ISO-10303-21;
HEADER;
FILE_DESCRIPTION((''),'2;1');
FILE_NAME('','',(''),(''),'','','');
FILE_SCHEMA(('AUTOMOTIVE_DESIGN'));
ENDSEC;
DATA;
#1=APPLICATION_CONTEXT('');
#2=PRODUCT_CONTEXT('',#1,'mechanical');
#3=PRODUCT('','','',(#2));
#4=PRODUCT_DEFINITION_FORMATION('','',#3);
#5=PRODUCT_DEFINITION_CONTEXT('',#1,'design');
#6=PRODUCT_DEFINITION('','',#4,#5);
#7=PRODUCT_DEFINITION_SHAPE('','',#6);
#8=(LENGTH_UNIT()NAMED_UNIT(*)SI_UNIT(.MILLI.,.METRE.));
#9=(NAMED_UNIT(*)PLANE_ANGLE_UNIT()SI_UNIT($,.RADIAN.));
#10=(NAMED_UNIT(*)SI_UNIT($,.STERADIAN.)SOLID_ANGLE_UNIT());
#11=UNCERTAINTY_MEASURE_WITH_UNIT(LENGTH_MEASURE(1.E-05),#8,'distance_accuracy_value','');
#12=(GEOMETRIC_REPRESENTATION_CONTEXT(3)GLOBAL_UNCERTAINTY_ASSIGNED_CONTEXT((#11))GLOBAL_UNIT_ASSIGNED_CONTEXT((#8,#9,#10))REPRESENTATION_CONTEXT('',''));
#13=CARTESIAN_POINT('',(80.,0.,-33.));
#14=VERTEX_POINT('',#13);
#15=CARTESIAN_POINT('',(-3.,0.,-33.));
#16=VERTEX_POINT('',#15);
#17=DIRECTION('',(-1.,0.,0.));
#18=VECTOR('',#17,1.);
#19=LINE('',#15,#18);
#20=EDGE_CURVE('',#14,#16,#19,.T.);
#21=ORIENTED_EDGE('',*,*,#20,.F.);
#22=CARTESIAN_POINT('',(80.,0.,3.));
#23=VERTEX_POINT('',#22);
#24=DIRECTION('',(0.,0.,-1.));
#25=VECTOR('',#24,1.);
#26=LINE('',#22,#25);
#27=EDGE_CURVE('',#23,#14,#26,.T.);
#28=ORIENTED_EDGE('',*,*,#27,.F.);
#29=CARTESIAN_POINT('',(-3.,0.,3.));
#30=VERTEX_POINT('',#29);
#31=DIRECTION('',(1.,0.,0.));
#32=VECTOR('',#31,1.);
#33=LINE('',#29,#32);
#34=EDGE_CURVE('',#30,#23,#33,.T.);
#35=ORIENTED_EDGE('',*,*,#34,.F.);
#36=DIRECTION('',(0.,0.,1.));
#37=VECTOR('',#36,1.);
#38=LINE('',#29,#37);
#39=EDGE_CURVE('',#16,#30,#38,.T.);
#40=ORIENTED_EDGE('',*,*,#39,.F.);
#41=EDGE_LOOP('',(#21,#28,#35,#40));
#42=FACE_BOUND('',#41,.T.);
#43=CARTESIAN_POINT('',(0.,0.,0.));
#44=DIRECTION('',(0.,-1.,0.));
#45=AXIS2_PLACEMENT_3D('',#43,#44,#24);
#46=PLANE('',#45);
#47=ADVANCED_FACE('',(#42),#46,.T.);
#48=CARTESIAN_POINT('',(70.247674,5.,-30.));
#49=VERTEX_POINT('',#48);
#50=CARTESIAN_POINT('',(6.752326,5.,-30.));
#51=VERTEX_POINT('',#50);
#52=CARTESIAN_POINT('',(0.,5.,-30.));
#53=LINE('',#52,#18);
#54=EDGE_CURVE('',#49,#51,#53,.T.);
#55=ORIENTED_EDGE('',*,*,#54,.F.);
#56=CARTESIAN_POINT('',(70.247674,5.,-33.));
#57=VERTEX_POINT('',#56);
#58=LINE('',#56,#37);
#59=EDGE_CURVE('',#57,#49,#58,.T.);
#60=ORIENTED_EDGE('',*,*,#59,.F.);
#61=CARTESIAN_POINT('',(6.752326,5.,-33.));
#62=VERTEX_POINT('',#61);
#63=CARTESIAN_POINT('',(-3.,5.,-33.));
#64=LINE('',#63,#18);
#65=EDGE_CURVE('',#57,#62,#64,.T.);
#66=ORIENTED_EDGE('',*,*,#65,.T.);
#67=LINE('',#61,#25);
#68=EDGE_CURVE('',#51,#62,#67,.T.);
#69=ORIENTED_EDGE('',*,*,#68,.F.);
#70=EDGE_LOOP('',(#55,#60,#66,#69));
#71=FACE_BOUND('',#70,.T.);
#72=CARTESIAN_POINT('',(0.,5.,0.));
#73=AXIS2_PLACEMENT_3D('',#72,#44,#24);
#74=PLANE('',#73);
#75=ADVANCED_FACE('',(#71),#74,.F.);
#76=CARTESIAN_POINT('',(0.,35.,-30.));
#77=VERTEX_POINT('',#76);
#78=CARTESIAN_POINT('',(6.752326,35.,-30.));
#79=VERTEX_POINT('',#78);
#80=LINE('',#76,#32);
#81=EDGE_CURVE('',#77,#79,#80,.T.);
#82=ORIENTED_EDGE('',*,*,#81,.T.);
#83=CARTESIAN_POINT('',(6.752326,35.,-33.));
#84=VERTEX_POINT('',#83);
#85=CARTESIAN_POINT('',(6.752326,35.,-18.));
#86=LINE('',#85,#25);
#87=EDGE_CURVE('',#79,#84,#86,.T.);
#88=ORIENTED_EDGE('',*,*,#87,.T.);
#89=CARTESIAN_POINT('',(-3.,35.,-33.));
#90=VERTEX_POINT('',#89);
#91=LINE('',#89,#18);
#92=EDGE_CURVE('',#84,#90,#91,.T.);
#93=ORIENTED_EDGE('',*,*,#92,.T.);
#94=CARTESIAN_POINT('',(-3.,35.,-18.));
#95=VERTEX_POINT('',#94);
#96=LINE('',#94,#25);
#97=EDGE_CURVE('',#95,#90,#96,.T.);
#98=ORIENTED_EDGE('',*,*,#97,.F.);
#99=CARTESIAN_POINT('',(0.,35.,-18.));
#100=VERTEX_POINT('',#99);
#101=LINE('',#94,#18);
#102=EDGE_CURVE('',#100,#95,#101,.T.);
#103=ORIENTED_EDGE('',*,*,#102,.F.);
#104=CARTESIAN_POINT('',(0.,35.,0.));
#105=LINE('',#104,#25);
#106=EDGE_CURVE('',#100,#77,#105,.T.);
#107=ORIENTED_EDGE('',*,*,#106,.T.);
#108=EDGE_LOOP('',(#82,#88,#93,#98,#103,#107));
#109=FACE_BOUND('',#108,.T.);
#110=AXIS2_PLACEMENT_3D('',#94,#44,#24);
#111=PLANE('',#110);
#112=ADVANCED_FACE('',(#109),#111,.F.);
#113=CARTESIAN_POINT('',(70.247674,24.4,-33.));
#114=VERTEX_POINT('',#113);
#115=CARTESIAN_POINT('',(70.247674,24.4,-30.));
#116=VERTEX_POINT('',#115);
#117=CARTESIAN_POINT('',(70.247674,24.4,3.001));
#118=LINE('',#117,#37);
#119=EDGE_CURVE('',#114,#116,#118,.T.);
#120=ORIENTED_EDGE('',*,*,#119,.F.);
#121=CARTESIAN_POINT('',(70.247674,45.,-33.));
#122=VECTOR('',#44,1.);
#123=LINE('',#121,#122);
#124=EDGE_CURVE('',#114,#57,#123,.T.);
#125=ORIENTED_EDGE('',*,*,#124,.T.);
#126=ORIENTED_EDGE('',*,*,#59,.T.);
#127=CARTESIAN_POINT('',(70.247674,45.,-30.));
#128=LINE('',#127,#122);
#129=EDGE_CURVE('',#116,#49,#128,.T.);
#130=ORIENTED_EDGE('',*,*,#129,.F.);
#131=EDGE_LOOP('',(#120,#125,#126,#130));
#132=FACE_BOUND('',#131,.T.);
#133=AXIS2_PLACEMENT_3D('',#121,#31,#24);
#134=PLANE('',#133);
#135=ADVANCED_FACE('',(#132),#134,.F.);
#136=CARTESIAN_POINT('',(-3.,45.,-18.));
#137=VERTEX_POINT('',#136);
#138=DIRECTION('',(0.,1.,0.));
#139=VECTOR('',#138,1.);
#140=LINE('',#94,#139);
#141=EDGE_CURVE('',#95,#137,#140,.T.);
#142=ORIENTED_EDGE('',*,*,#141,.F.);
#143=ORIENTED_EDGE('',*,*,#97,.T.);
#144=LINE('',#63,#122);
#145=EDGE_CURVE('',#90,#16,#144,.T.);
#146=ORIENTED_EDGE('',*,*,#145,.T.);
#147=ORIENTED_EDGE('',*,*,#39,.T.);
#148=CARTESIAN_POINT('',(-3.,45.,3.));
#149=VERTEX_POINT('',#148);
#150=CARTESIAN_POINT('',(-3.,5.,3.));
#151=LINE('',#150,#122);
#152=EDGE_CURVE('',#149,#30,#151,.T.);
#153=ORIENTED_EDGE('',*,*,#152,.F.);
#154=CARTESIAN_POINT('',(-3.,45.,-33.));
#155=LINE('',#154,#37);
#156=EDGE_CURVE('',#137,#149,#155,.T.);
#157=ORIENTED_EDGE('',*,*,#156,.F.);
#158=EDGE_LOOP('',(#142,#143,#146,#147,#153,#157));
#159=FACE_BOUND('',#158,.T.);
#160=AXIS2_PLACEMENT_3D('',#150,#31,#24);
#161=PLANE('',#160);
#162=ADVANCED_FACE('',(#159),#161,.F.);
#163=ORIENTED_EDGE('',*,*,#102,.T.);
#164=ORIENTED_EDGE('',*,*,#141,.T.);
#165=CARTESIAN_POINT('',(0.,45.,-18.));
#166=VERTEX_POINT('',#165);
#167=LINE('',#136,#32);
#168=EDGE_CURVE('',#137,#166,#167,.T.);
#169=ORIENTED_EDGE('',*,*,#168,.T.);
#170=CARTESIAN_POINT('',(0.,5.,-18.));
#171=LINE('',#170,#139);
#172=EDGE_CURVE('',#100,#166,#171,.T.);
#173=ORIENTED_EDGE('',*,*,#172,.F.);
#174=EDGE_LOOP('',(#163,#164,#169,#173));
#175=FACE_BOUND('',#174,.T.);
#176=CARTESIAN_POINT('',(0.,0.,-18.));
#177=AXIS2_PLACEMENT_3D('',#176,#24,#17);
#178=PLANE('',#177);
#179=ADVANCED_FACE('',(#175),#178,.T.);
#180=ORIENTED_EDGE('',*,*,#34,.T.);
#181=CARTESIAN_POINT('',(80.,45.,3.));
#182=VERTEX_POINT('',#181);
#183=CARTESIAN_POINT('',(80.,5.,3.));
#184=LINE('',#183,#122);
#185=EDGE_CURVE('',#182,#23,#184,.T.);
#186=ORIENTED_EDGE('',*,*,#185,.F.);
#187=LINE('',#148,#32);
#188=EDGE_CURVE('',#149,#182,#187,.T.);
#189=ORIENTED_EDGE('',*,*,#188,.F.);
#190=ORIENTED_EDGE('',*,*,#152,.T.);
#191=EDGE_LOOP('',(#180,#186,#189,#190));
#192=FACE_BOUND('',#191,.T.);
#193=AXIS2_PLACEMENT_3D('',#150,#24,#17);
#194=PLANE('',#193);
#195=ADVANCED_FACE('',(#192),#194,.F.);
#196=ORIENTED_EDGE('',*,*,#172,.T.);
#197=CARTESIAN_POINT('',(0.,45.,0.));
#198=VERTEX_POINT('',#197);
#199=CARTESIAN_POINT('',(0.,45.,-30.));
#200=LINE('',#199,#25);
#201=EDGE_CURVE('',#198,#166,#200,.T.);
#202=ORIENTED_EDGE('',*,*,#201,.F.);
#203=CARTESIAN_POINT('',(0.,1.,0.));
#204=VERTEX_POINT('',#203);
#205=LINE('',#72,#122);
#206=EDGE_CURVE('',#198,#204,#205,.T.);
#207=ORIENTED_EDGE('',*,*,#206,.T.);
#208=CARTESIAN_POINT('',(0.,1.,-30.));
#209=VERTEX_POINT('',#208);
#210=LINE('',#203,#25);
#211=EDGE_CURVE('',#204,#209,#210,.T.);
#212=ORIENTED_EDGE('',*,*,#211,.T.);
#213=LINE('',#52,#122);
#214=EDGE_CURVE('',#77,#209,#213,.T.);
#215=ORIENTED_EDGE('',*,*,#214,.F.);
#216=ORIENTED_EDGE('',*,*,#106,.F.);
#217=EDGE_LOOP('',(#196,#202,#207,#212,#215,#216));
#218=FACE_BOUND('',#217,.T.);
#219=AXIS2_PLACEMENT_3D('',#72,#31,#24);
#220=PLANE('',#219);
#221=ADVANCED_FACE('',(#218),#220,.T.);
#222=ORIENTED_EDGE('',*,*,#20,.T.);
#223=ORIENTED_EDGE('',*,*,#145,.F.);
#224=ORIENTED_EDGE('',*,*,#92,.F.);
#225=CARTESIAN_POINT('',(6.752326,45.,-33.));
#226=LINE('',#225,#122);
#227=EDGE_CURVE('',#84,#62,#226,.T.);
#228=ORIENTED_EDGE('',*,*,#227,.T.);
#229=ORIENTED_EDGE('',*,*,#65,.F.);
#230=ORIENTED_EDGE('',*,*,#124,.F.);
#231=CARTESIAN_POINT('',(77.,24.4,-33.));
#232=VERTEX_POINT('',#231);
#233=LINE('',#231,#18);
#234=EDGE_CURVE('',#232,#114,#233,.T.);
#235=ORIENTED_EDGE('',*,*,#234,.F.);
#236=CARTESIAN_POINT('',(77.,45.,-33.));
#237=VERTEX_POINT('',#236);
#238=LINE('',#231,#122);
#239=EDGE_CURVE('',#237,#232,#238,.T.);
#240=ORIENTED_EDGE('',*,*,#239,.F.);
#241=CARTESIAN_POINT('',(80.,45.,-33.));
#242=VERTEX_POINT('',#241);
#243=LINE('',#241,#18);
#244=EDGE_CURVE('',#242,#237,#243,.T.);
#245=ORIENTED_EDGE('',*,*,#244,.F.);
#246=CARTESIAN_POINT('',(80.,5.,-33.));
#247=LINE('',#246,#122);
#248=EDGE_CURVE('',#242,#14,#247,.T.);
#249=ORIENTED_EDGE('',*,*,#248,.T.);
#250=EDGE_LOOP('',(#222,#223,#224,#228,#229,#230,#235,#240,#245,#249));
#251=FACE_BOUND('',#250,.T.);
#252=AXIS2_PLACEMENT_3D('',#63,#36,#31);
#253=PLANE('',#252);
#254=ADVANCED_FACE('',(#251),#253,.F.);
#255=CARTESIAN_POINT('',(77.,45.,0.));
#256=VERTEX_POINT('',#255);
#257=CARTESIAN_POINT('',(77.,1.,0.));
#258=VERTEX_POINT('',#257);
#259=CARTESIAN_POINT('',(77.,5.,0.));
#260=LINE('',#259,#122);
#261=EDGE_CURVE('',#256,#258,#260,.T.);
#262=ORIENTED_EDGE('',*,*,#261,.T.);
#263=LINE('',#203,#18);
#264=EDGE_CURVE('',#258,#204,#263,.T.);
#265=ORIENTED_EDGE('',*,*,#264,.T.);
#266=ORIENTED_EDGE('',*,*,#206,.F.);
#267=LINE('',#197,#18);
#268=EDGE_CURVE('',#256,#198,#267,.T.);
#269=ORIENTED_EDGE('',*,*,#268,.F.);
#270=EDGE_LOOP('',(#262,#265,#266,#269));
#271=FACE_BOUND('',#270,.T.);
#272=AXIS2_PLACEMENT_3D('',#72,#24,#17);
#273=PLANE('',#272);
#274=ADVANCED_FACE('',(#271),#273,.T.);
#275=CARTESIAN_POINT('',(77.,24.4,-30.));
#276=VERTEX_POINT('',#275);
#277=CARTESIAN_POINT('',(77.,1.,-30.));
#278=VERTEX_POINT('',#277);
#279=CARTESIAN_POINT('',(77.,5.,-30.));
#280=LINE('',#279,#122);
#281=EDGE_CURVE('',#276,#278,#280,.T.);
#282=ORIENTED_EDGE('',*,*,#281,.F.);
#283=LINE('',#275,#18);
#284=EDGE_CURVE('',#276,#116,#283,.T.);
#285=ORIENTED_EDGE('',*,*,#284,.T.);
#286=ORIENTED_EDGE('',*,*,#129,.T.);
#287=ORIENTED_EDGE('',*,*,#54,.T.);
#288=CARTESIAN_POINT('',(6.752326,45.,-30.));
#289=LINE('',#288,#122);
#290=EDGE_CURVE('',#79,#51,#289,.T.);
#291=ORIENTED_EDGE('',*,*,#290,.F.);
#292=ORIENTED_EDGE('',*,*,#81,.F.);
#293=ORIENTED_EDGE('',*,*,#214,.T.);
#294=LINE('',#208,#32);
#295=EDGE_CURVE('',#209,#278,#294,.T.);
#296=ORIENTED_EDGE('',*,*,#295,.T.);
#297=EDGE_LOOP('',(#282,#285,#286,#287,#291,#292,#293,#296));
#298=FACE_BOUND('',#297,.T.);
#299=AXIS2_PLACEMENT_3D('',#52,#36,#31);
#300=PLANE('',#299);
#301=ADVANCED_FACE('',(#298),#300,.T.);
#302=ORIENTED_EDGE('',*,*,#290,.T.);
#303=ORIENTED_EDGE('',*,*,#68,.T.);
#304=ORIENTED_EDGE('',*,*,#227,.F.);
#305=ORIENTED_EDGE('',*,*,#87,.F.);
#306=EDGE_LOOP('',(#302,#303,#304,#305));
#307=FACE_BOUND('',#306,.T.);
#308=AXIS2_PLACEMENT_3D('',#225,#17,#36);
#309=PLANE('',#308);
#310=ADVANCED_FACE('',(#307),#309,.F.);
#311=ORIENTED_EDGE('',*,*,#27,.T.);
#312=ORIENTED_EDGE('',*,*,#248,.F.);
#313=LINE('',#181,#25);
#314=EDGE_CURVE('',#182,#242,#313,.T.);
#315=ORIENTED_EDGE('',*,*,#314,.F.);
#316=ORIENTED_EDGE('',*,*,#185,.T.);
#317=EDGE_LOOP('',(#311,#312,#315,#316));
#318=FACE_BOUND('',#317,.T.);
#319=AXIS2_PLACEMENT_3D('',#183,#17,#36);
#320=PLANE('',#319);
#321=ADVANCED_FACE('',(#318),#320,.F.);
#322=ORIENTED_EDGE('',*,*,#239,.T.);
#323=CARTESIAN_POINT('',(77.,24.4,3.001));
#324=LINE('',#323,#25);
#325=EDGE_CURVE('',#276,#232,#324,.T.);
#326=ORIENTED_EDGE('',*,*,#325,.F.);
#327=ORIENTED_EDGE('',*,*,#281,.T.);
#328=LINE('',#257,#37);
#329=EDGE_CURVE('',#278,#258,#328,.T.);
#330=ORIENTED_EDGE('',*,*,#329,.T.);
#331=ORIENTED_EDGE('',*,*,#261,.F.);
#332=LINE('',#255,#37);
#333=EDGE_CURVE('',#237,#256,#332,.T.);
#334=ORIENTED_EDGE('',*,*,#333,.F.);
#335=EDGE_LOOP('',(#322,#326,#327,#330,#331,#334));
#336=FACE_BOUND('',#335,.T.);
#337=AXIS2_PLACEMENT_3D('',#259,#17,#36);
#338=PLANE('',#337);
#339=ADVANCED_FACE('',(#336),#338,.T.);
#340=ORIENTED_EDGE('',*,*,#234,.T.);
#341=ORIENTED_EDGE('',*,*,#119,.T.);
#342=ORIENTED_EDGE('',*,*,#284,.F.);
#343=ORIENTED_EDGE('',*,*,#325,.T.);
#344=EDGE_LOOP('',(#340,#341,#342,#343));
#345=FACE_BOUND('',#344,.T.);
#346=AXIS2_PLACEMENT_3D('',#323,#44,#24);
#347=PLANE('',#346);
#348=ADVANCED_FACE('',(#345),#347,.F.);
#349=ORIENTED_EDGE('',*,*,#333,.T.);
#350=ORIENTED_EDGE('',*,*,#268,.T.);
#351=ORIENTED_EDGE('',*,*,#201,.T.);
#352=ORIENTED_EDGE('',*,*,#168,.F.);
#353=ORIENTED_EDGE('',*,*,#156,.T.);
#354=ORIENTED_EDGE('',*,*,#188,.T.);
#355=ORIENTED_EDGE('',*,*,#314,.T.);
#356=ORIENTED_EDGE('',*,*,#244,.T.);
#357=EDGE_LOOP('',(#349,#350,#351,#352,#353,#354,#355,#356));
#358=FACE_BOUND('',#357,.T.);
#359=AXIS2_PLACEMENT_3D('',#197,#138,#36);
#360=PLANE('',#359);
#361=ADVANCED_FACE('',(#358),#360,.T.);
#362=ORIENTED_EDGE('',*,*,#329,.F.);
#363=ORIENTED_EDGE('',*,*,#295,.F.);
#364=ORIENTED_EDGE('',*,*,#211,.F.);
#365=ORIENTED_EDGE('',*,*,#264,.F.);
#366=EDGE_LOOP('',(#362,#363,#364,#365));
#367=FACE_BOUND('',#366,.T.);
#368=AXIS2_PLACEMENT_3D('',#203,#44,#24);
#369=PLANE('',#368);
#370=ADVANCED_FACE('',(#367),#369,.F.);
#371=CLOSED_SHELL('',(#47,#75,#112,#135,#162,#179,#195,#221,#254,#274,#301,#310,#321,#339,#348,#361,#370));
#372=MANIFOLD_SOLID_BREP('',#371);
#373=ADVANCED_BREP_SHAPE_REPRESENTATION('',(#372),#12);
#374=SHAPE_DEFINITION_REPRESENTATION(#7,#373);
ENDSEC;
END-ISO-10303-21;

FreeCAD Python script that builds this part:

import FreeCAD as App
import Part
import Sketcher

V = App.Vector


def add_polygon(sketch, points):
    """Adds a closed chain of lines whose ends are joined by coincident constraints."""
    first, n = sketch.GeometryCount, len(points)
    for a, b in zip(points, points[1:] + points[:1]):
        sketch.addGeometry(Part.LineSegment(App.Vector(*a, 0), App.Vector(*b, 0)), False)
    for i in range(n):
        sketch.addConstraint(Sketcher.Constraint("Coincident", first + i, 2, first + (i + 1) % n, 1))

doc = App.newDocument("Part")
body = doc.addObject("PartDesign::Body", "Body")

sketch1 = body.newObject("Sketcher::SketchObject", "Sketch")
sketch1.AttachmentSupport = (doc.getObject("XZ_Plane"), [""])
sketch1.MapMode = "FlatFace"
add_polygon(sketch1, [(-3, -33), (-3, 3), (80, 3), (80, -33)])
add_polygon(sketch1, [(77, 0), (0, 0), (0, -30), (77, -30)])
sketch1.addConstraint(Sketcher.Constraint("Vertical", 0))
sketch1.addConstraint(Sketcher.Constraint("Horizontal", 1))
sketch1.addConstraint(Sketcher.Constraint("Vertical", 2))
sketch1.addConstraint(Sketcher.Constraint("Horizontal", 3))
sketch1.addConstraint(Sketcher.Constraint("Horizontal", 4))
sketch1.addConstraint(Sketcher.Constraint("Vertical", 5))
sketch1.addConstraint(Sketcher.Constraint("Horizontal", 6))
sketch1.addConstraint(Sketcher.Constraint("Vertical", 7))
sketch1.addConstraint(Sketcher.Constraint("Coincident", 4, 2, -1, 1))
sketch1.addConstraint(Sketcher.Constraint("DistanceX", 1, 1, 1, 2, 83.0))
sketch1.addConstraint(Sketcher.Constraint("DistanceX", 4, 2, 4, 1, 77.0))
sketch1.addConstraint(Sketcher.Constraint("DistanceY", 0, 1, 0, 2, 36.0))
sketch1.addConstraint(Sketcher.Constraint("DistanceY", 5, 2, 5, 1, 30.0))
sketch1.addConstraint(Sketcher.Constraint("DistanceX", 0, 2, -1, 1, 3.0))
sketch1.addConstraint(Sketcher.Constraint("DistanceY", -1, 1, 0, 2, 3.0))
pad1 = body.newObject("PartDesign::Pad", "Pad")
pad1.Profile = sketch1
pad1.Length = 5
pad1.Reversed = True

sketch2 = body.newObject("Sketcher::SketchObject", "Sketch001")
sketch2.AttachmentSupport = (doc.getObject("XZ_Plane"), [""])
sketch2.MapMode = "FlatFace"
sketch2.AttachmentOffset = App.Placement(V(0, 0, -5), App.Rotation())
add_polygon(sketch2, [(80, 3), (80, -33), (70.2, -33), (70.2, -30), (77, -30), (77, 0), (0, 0), (0, -30), (6.8, -30), (6.8, -33), (-3, -33), (-3, 3)])
sketch2.addConstraint(Sketcher.Constraint("Vertical", 0))
sketch2.addConstraint(Sketcher.Constraint("Horizontal", 1))
sketch2.addConstraint(Sketcher.Constraint("Vertical", 2))
sketch2.addConstraint(Sketcher.Constraint("Horizontal", 3))
sketch2.addConstraint(Sketcher.Constraint("Vertical", 4))
sketch2.addConstraint(Sketcher.Constraint("Horizontal", 5))
sketch2.addConstraint(Sketcher.Constraint("Vertical", 6))
sketch2.addConstraint(Sketcher.Constraint("Horizontal", 7))
sketch2.addConstraint(Sketcher.Constraint("Vertical", 8))
sketch2.addConstraint(Sketcher.Constraint("Horizontal", 9))
sketch2.addConstraint(Sketcher.Constraint("Vertical", 10))
sketch2.addConstraint(Sketcher.Constraint("Horizontal", 11))
sketch2.addConstraint(Sketcher.Constraint("Coincident", 5, 2, -1, 1))
sketch2.addConstraint(Sketcher.Constraint("Horizontal", 3, 2, 6, 2))
sketch2.addConstraint(Sketcher.Constraint("Horizontal", 1, 2, 8, 2))
sketch2.addConstraint(Sketcher.Constraint("Equal", 3, 7))
sketch2.addConstraint(Sketcher.Constraint("Equal", 1, 9))
sketch2.addConstraint(Sketcher.Constraint("DistanceX", 5, 2, 5, 1, 77.0))
sketch2.addConstraint(Sketcher.Constraint("DistanceX", 11, 1, 11, 2, 83.0))
sketch2.addConstraint(Sketcher.Constraint("DistanceY", 0, 2, 0, 1, 36.0))
sketch2.addConstraint(Sketcher.Constraint("DistanceY", 2, 1, 2, 2, 3.0))
sketch2.addConstraint(Sketcher.Constraint("DistanceY", 4, 1, 4, 2, 30.0))
sketch2.addConstraint(Sketcher.Constraint("DistanceX", 1, 2, 1, 1, 9.752326))
pad2 = body.newObject("PartDesign::Pad", "Pad001")
pad2.Profile = sketch2
pad2.Length = 40
pad2.Reversed = True

sketch3 = body.newObject("Sketcher::SketchObject", "Sketch002")
sketch3.AttachmentSupport = (doc.getObject("XZ_Plane"), [""])
sketch3.MapMode = "FlatFace"
add_polygon(sketch3, [(-3, 3), (-3, -33), (80, -33), (80, 3)])
sketch3.addConstraint(Sketcher.Constraint("Vertical", 0))
sketch3.addConstraint(Sketcher.Constraint("Horizontal", 1))
sketch3.addConstraint(Sketcher.Constraint("Vertical", 2))
sketch3.addConstraint(Sketcher.Constraint("Horizontal", 3))
sketch3.addConstraint(Sketcher.Constraint("DistanceX", 1, 1, 1, 2, 83.0))
sketch3.addConstraint(Sketcher.Constraint("DistanceY", 0, 2, 0, 1, 36.0))
sketch3.addConstraint(Sketcher.Constraint("DistanceX", 0, 2, -1, 1, 3.0))
sketch3.addConstraint(Sketcher.Constraint("DistanceY", 0, 2, -1, 1, 33.0))
pad3 = body.newObject("PartDesign::Pad", "Pad002")
pad3.Profile = sketch3
pad3.Length = 1
pad3.Reversed = True

sketch4 = body.newObject("Sketcher::SketchObject", "Sketch003")
sketch4.AttachmentSupport = (doc.getObject("XY_Plane"), [""])
sketch4.MapMode = "FlatFace"
sketch4.AttachmentOffset = App.Placement(V(0, 0, -33), App.Rotation())
add_polygon(sketch4, [(7, 45), (7, 35), (-3, 35), (-3, 45)])
sketch4.addConstraint(Sketcher.Constraint("Vertical", 0))
sketch4.addConstraint(Sketcher.Constraint("Horizontal", 1))
sketch4.addConstraint(Sketcher.Constraint("Vertical", 2))
sketch4.addConstraint(Sketcher.Constraint("Horizontal", 3))
sketch4.addConstraint(Sketcher.Constraint("DistanceY", 0, 2, 0, 1, 10.0))
sketch4.addConstraint(Sketcher.Constraint("DistanceY", -1, 1, 0, 2, 35.0))
sketch4.addConstraint(Sketcher.Constraint("DistanceX", 1, 2, -1, 1, 3.0))
sketch4.addConstraint(Sketcher.Constraint("DistanceX", 1, 2, 1, 1, 9.752326))
pocket1 = body.newObject("PartDesign::Pocket", "Pocket")
pocket1.Profile = sketch4
pocket1.Length = 15
pocket1.Reversed = True

sketch5 = body.newObject("Sketcher::SketchObject", "Sketch004")
sketch5.AttachmentSupport = (doc.getObject("XY_Plane"), [""])
sketch5.MapMode = "FlatFace"
sketch5.AttachmentOffset = App.Placement(V(0, 0, -33), App.Rotation())
add_polygon(sketch5, [(77, 46), (77, 24), (70, 24), (70, 46)])
sketch5.addConstraint(Sketcher.Constraint("Vertical", 0))
sketch5.addConstraint(Sketcher.Constraint("Horizontal", 1))
sketch5.addConstraint(Sketcher.Constraint("Vertical", 2))
sketch5.addConstraint(Sketcher.Constraint("Horizontal", 3))
sketch5.addConstraint(Sketcher.Constraint("DistanceX", -1, 1, 0, 2, 77.0))
sketch5.addConstraint(Sketcher.Constraint("DistanceY", -1, 1, 0, 2, 24.4))
sketch5.addConstraint(Sketcher.Constraint("DistanceX", 1, 2, 1, 1, 7.400593))
sketch5.addConstraint(Sketcher.Constraint("DistanceY", 0, 2, 0, 1, 21.288595))
pocket2 = body.newObject("PartDesign::Pocket", "Pocket001")
pocket2.Profile = sketch5
pocket2.Type = "UpToFirst"
pocket2.Reversed = True

doc.recompute()
